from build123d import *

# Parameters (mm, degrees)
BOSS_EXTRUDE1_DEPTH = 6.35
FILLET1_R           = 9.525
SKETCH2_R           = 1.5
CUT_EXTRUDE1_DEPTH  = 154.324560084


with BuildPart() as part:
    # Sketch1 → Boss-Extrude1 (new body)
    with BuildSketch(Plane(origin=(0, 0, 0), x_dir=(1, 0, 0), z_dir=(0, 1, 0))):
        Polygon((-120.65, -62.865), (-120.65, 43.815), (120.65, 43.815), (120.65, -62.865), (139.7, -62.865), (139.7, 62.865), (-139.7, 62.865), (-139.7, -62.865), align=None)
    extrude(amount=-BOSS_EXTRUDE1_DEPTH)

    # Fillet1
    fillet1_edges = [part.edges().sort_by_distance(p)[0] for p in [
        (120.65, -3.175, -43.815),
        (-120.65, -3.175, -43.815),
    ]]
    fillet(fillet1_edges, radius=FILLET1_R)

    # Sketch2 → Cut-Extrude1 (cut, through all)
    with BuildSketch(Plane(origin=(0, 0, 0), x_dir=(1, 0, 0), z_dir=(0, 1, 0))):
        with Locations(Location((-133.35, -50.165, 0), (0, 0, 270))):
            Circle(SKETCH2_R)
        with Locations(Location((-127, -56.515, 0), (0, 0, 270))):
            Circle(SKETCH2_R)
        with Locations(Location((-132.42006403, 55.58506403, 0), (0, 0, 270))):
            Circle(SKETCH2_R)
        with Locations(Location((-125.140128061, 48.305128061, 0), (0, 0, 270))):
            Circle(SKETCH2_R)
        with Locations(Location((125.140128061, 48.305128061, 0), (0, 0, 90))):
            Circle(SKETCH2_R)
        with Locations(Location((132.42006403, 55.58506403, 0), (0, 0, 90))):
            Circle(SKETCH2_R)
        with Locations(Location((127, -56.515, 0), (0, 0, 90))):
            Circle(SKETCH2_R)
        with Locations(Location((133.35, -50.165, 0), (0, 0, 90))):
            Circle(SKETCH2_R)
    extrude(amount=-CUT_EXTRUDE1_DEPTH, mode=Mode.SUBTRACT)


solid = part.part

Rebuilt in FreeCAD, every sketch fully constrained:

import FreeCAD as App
import Part
import Sketcher
from FreeCAD import Vector
Q = App.Units.Quantity


def edges_at(feature, points):
    """Names of the edges that pass closest to the given points."""
    edges = feature.Shape.Edges
    near = lambda p: min(range(len(edges)), key=lambda i: edges[i].distToShape(Part.Vertex(*p))[0])
    return sorted({f"Edge{near(p) + 1}" for p in points})

doc = App.newDocument("Part")
params = doc.addObject("Spreadsheet::Sheet", "Params")
for row, (alias, value) in enumerate([
    ("sketch1_width", "11 in"),
    ("sketch1_width2", "9.5 in"),
    ("sketch1_height", "4.2 in"),
    ("sketch1_height2", "4.95 in"),
    ("pad1_length", "0.25 in"),
    ("fillet_radius", "0.375 in"),
], start=1):
    params.set(f"A{row}", alias)
    params.set(f"B{row}", "=" + value)
    params.setAlias(f"B{row}", alias)

body = doc.addObject("PartDesign::Body", "Body")

# Sketch on XZ plane
sketch1 = doc.addObject("Sketcher::SketchObject", "Sketch")
body.addObject(sketch1)
sketch1.AttachmentSupport = (doc.XZ_Plane, [""])
sketch1.MapMode = "FlatFace"
sketch1.addGeometry(Part.LineSegment(Vector(-121, 63, 0), Vector(-121, -44, 0)), False)
sketch1.addGeometry(Part.LineSegment(Vector(-121, -44, 0), Vector(121, -44, 0)), False)
sketch1.addGeometry(Part.LineSegment(Vector(121, -44, 0), Vector(121, 63, 0)), False)
sketch1.addGeometry(Part.LineSegment(Vector(121, 63, 0), Vector(140, 63, 0)), False)
sketch1.addGeometry(Part.LineSegment(Vector(140, 63, 0), Vector(140, -63, 0)), False)
sketch1.addGeometry(Part.LineSegment(Vector(140, -63, 0), Vector(-140, -63, 0)), False)
sketch1.addGeometry(Part.LineSegment(Vector(-140, -63, 0), Vector(-140, 63, 0)), False)
sketch1.addGeometry(Part.LineSegment(Vector(-140, 63, 0), Vector(-121, 63, 0)), False)
sketch1.addConstraint(Sketcher.Constraint("Coincident", 0, 2, 1, 1))
sketch1.addConstraint(Sketcher.Constraint("Coincident", 1, 2, 2, 1))
sketch1.addConstraint(Sketcher.Constraint("Coincident", 2, 2, 3, 1))
sketch1.addConstraint(Sketcher.Constraint("Coincident", 3, 2, 4, 1))
sketch1.addConstraint(Sketcher.Constraint("Coincident", 4, 2, 5, 1))
sketch1.addConstraint(Sketcher.Constraint("Coincident", 5, 2, 6, 1))
sketch1.addConstraint(Sketcher.Constraint("Coincident", 6, 2, 7, 1))
sketch1.addConstraint(Sketcher.Constraint("Coincident", 7, 2, 0, 1))
sketch1.addConstraint(Sketcher.Constraint("Vertical", 0))
sketch1.addConstraint(Sketcher.Constraint("Horizontal", 1))
sketch1.addConstraint(Sketcher.Constraint("Vertical", 2))
sketch1.addConstraint(Sketcher.Constraint("Horizontal", 3))
sketch1.addConstraint(Sketcher.Constraint("Vertical", 4))
sketch1.addConstraint(Sketcher.Constraint("Horizontal", 5))
sketch1.addConstraint(Sketcher.Constraint("Vertical", 6))
sketch1.addConstraint(Sketcher.Constraint("Horizontal", 7))
sketch1.addConstraint(Sketcher.Constraint("Symmetric", 3, 2, 5, 2, -1, 1))
sketch1.addConstraint(Sketcher.Constraint("Symmetric", 2, 2, 7, 2, -2))
sketch1.addConstraint(Sketcher.Constraint("DistanceX", 5, 2, 5, 1, Q("11 in")))
sketch1.addConstraint(Sketcher.Constraint("DistanceX", 1, 1, 1, 2, Q("9.5 in")))
sketch1.addConstraint(Sketcher.Constraint("DistanceY", 0, 2, 0, 1, Q("4.2 in")))
sketch1.addConstraint(Sketcher.Constraint("DistanceY", 4, 2, 4, 1, Q("4.95 in")))
sketch1.setExpression("Constraints[18]", "Params.sketch1_width")
sketch1.setExpression("Constraints[19]", "Params.sketch1_width2")
sketch1.setExpression("Constraints[20]", "Params.sketch1_height")
sketch1.setExpression("Constraints[21]", "Params.sketch1_height2")
pad1 = doc.addObject("PartDesign::Pad", "Pad")
body.addObject(pad1)
pad1.Profile = sketch1
pad1.setExpression("Length", "Params.pad1_length")
doc.recompute()

fillet = doc.addObject("PartDesign::Fillet", "Fillet")
body.addObject(fillet)
fillet.Base = (pad1, edges_at(pad1, [(120.65, -3.175, -43.815), (-120.65, -3.175, -43.815)]))
fillet.setExpression("Radius", "Params.fillet_radius")

# Sketch on XZ plane
sketch2 = doc.addObject("Sketcher::SketchObject", "Sketch001")
body.addObject(sketch2)
sketch2.AttachmentSupport = (doc.XZ_Plane, [""])
sketch2.MapMode = "FlatFace"
sketch2.addGeometry(Part.Circle(Vector(-133.3, 50.2, 0), Vector(0, 0, 1), 1.5), False)
sketch2.addGeometry(Part.Circle(Vector(-127, 56.5, 0), Vector(0, 0, 1), 1.5), False)
sketch2.addGeometry(Part.Circle(Vector(-132.4, -55.6, 0), Vector(0, 0, 1), 1.5), False)
sketch2.addGeometry(Part.Circle(Vector(-125.1, -48.3, 0), Vector(0, 0, 1), 1.5), False)
sketch2.addGeometry(Part.Circle(Vector(125.1, -48.3, 0), Vector(0, 0, 1), 1.5), False)
sketch2.addGeometry(Part.Circle(Vector(132.4, -55.6, 0), Vector(0, 0, 1), 1.5), False)
sketch2.addGeometry(Part.Circle(Vector(127, 56.5, 0), Vector(0, 0, 1), 1.5), False)
sketch2.addGeometry(Part.Circle(Vector(133.3, 50.2, 0), Vector(0, 0, 1), 1.5), False)
sketch2.addConstraint(Sketcher.Constraint("Equal", 0, 1))
sketch2.addConstraint(Sketcher.Constraint("Equal", 1, 2))
sketch2.addConstraint(Sketcher.Constraint("Equal", 2, 3))
sketch2.addConstraint(Sketcher.Constraint("Equal", 3, 4))
sketch2.addConstraint(Sketcher.Constraint("Equal", 4, 5))
sketch2.addConstraint(Sketcher.Constraint("Equal", 5, 6))
sketch2.addConstraint(Sketcher.Constraint("Equal", 6, 7))
sketch2.addConstraint(Sketcher.Constraint("Symmetric", 3, 3, 4, 3, -2))
sketch2.addConstraint(Sketcher.Constraint("Symmetric", 2, 3, 5, 3, -2))
sketch2.addConstraint(Sketcher.Constraint("Symmetric", 1, 3, 6, 3, -2))
sketch2.addConstraint(Sketcher.Constraint("Symmetric", 0, 3, 7, 3, -2))
sketch2.addConstraint(Sketcher.Constraint("DistanceX", 1, 3, -1, 1, Q("5 in")))
sketch2.addConstraint(Sketcher.Constraint("DistanceX", 0, 3, 7, 3, Q("10.5 in")))
sketch2.addConstraint(Sketcher.Constraint("Diameter", 0, Q("3 mm")))
sketch2.addConstraint(Sketcher.Constraint("DistanceY", 0, 3, 1, 3, Q("0.25 in")))
sketch2.addConstraint(Sketcher.Constraint("DistanceY", -1, 1, 0, 3, Q("1.975 in")))
sketch2.addConstraint(Sketcher.Constraint("DistanceX", 3, 3, -1, 1, Q("125.140128 mm")))
sketch2.addConstraint(Sketcher.Constraint("DistanceY", 3, 3, -1, 1, Q("48.305128 mm")))
sketch2.addConstraint(Sketcher.Constraint("DistanceX", 2, 3, 5, 3, Q("264.840128 mm")))
sketch2.addConstraint(Sketcher.Constraint("DistanceY", 2, 3, -1, 1, Q("55.585064 mm")))
pocket1 = doc.addObject("PartDesign::Pocket", "Pocket")
body.addObject(pocket1)
pocket1.Profile = sketch2
pocket1.Type = "ThroughAll"
pocket1.Reversed = True

doc.recompute()
